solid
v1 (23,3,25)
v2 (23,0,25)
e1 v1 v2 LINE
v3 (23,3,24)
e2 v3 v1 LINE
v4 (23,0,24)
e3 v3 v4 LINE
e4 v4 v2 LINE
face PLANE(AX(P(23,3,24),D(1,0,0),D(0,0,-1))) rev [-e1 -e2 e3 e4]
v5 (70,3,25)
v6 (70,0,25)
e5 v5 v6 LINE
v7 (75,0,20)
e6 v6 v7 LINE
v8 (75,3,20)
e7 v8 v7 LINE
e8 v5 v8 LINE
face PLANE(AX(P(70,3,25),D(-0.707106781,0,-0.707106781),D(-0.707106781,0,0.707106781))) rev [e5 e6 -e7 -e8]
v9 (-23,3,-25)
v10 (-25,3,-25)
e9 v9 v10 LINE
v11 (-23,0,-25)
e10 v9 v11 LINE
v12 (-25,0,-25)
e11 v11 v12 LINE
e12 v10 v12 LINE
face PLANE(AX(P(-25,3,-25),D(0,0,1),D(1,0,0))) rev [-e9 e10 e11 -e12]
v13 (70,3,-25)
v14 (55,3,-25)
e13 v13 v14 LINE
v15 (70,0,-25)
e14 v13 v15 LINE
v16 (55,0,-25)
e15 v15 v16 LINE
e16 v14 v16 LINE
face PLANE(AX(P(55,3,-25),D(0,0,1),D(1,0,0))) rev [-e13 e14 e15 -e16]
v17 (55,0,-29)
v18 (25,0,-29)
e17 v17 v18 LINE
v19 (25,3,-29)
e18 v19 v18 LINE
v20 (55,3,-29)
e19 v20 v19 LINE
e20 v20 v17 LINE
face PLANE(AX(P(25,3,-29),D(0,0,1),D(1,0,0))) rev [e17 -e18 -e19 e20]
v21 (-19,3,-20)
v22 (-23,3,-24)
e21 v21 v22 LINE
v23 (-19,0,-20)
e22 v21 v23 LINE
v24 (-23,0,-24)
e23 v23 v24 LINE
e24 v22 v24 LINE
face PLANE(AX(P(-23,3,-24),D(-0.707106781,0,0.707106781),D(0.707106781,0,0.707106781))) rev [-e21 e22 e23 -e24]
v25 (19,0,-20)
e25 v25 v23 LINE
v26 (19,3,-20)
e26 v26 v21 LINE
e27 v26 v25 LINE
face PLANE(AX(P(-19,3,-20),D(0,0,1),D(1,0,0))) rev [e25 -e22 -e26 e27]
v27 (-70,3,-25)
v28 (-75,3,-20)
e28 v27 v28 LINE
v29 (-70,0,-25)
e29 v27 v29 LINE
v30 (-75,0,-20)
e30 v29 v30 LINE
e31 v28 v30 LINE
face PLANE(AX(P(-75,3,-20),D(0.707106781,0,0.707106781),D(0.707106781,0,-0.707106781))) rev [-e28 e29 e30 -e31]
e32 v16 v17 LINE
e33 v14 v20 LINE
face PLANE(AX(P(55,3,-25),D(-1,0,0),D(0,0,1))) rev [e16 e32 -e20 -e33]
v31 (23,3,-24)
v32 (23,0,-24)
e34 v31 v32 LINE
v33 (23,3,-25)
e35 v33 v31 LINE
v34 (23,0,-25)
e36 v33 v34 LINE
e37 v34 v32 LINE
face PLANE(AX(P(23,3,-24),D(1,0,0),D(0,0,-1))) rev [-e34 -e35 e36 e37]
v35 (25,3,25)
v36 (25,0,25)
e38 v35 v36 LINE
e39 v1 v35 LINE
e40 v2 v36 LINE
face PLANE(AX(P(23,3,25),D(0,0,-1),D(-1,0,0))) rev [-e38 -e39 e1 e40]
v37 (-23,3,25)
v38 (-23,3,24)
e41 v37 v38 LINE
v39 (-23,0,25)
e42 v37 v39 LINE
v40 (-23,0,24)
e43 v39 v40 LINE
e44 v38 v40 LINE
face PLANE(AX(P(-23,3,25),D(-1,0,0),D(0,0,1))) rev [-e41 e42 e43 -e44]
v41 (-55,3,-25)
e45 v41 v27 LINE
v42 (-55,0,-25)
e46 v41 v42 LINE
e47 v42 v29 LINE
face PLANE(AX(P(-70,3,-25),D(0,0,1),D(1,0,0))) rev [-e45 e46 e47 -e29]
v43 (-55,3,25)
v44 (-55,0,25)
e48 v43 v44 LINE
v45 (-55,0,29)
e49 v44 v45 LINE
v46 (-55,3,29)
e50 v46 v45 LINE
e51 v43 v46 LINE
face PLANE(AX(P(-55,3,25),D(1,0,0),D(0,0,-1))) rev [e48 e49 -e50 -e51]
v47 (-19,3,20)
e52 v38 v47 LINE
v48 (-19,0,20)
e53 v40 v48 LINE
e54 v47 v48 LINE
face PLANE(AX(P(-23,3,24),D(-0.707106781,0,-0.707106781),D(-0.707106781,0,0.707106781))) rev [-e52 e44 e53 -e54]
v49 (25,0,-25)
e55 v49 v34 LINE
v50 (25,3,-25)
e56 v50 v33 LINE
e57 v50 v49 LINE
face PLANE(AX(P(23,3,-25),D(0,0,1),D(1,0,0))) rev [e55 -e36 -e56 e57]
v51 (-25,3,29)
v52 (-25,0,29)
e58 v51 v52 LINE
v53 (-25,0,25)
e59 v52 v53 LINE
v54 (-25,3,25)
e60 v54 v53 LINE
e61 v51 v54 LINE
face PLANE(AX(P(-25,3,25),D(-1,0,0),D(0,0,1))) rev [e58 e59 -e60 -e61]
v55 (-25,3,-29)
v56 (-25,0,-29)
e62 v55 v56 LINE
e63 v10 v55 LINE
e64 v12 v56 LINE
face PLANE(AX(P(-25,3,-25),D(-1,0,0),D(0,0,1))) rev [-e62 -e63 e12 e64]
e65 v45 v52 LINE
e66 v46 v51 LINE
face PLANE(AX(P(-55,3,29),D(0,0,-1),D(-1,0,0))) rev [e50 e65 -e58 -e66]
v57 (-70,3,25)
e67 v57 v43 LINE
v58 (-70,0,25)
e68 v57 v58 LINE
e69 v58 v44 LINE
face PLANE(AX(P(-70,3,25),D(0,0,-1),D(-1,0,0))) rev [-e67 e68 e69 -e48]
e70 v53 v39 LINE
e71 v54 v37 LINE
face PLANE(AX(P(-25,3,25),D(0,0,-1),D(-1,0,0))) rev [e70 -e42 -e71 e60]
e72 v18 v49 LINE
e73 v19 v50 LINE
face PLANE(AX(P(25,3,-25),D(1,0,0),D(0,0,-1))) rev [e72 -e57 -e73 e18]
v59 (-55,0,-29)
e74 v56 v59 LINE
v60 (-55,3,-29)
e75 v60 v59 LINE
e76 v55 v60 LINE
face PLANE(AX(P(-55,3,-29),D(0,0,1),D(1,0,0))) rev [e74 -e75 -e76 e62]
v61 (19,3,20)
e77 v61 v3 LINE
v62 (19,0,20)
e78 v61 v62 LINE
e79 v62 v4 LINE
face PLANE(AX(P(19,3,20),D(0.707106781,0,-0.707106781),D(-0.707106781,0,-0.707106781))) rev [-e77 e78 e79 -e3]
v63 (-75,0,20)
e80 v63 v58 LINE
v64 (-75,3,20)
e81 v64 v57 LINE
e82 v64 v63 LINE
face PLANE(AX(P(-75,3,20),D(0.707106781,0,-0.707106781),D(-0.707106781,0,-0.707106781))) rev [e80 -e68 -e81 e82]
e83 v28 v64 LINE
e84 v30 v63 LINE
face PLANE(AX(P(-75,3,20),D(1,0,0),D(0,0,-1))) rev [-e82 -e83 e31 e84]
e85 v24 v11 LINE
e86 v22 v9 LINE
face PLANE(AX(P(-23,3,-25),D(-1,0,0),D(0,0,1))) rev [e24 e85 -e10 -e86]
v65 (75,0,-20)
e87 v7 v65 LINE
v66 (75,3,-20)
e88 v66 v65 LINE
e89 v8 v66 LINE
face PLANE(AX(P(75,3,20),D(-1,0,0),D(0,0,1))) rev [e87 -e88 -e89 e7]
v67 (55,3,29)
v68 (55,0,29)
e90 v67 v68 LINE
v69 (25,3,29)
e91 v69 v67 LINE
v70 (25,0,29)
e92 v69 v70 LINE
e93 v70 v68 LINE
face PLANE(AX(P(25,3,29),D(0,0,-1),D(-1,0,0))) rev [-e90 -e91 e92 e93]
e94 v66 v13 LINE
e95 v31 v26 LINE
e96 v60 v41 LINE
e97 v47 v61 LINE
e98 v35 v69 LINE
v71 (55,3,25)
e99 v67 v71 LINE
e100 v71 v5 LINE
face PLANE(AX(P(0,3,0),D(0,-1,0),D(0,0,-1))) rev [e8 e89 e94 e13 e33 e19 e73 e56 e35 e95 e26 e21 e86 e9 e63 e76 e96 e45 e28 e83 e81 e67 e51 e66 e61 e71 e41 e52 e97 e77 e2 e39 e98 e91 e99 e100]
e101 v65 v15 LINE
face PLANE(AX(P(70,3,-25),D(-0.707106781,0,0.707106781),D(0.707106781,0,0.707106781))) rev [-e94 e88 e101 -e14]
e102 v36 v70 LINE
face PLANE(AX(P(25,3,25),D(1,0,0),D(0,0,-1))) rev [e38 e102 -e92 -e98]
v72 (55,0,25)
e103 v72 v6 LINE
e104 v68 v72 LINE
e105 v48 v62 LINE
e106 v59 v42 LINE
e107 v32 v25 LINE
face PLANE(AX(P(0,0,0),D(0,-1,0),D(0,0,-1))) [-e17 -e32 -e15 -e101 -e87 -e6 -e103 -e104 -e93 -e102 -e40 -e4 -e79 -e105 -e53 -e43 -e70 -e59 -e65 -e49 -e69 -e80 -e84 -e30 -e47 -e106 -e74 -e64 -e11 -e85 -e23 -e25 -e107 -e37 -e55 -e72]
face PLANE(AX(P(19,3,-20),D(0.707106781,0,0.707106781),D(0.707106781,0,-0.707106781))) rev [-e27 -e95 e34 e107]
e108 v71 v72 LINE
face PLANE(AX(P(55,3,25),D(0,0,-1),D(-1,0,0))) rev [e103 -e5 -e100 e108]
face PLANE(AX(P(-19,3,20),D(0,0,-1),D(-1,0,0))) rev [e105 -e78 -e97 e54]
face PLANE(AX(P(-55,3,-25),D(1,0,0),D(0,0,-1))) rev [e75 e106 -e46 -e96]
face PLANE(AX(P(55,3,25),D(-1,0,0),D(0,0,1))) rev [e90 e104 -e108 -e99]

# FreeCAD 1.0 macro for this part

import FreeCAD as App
import Part
import Sketcher

V = App.Vector

doc = App.newDocument("Part")
body = doc.addObject("PartDesign::Body", "Body")

# Sketch on XZ plane
sketch1 = doc.addObject("Sketcher::SketchObject", "Sketch")
body.addObject(sketch1)
sketch1.AttachmentSupport = (doc.XZ_Plane, [""])
sketch1.MapMode = "FlatFace"
sketch1.addGeometry(Part.LineSegment(V(-70, 25, 0), V(-55, 25, 0)), False)
sketch1.addGeometry(Part.LineSegment(V(-55, 25, 0), V(-55, 29, 0)), False)
sketch1.addGeometry(Part.LineSegment(V(-55, 29, 0), V(-25, 29, 0)), False)
sketch1.addGeometry(Part.LineSegment(V(-25, 29, 0), V(-25, 25, 0)), False)
sketch1.addGeometry(Part.LineSegment(V(-25, 25, 0), V(-23, 25, 0)), False)
sketch1.addGeometry(Part.LineSegment(V(-23, 25, 0), V(-23, 24, 0)), False)
sketch1.addGeometry(Part.LineSegment(V(-23, 24, 0), V(-19, 20, 0)), False)
sketch1.addGeometry(Part.LineSegment(V(-19, 20, 0), V(19, 20, 0)), False)
sketch1.addGeometry(Part.LineSegment(V(19, 20, 0), V(23, 24, 0)), False)
sketch1.addGeometry(Part.LineSegment(V(23, 24, 0), V(23, 25, 0)), False)
sketch1.addGeometry(Part.LineSegment(V(23, 25, 0), V(25, 25, 0)), False)
sketch1.addGeometry(Part.LineSegment(V(25, 25, 0), V(25, 29, 0)), False)
sketch1.addGeometry(Part.LineSegment(V(25, 29, 0), V(55, 29, 0)), False)
sketch1.addGeometry(Part.LineSegment(V(55, 29, 0), V(55, 25, 0)), False)
sketch1.addGeometry(Part.LineSegment(V(55, 25, 0), V(70, 25, 0)), False)
sketch1.addGeometry(Part.LineSegment(V(70, 25, 0), V(75, 20, 0)), False)
sketch1.addGeometry(Part.LineSegment(V(75, 20, 0), V(75, -20, 0)), False)
sketch1.addGeometry(Part.LineSegment(V(75, -20, 0), V(70, -25, 0)), False)
sketch1.addGeometry(Part.LineSegment(V(70, -25, 0), V(55, -25, 0)), False)
sketch1.addGeometry(Part.LineSegment(V(55, -25, 0), V(55, -29, 0)), False)
sketch1.addGeometry(Part.LineSegment(V(55, -29, 0), V(25, -29, 0)), False)
sketch1.addGeometry(Part.LineSegment(V(25, -29, 0), V(25, -25, 0)), False)
sketch1.addGeometry(Part.LineSegment(V(25, -25, 0), V(23, -25, 0)), False)
sketch1.addGeometry(Part.LineSegment(V(23, -25, 0), V(23, -24, 0)), False)
sketch1.addGeometry(Part.LineSegment(V(23, -24, 0), V(19, -20, 0)), False)
sketch1.addGeometry(Part.LineSegment(V(19, -20, 0), V(-19, -20, 0)), False)
sketch1.addGeometry(Part.LineSegment(V(-19, -20, 0), V(-23, -24, 0)), False)
sketch1.addGeometry(Part.LineSegment(V(-23, -24, 0), V(-23, -25, 0)), False)
sketch1.addGeometry(Part.LineSegment(V(-23, -25, 0), V(-25, -25, 0)), False)
sketch1.addGeometry(Part.LineSegment(V(-25, -25, 0), V(-25, -29, 0)), False)
sketch1.addGeometry(Part.LineSegment(V(-25, -29, 0), V(-55, -29, 0)), False)
sketch1.addGeometry(Part.LineSegment(V(-55, -29, 0), V(-55, -25, 0)), False)
sketch1.addGeometry(Part.LineSegment(V(-55, -25, 0), V(-70, -25, 0)), False)
sketch1.addGeometry(Part.LineSegment(V(-70, -25, 0), V(-75, -20, 0)), False)
sketch1.addGeometry(Part.LineSegment(V(-75, -20, 0), V(-75, 20, 0)), False)
sketch1.addGeometry(Part.LineSegment(V(-75, 20, 0), V(-70, 25, 0)), False)
sketch1.addConstraint(Sketcher.Constraint("Coincident", 0, 2, 1, 1))
sketch1.addConstraint(Sketcher.Constraint("Coincident", 1, 2, 2, 1))
sketch1.addConstraint(Sketcher.Constraint("Coincident", 2, 2, 3, 1))
sketch1.addConstraint(Sketcher.Constraint("Coincident", 3, 2, 4, 1))
sketch1.addConstraint(Sketcher.Constraint("Coincident", 4, 2, 5, 1))
sketch1.addConstraint(Sketcher.Constraint("Coincident", 5, 2, 6, 1))
sketch1.addConstraint(Sketcher.Constraint("Coincident", 6, 2, 7, 1))
sketch1.addConstraint(Sketcher.Constraint("Coincident", 7, 2, 8, 1))
sketch1.addConstraint(Sketcher.Constraint("Coincident", 8, 2, 9, 1))
sketch1.addConstraint(Sketcher.Constraint("Coincident", 9, 2, 10, 1))
sketch1.addConstraint(Sketcher.Constraint("Coincident", 10, 2, 11, 1))
sketch1.addConstraint(Sketcher.Constraint("Coincident", 11, 2, 12, 1))
sketch1.addConstraint(Sketcher.Constraint("Coincident", 12, 2, 13, 1))
sketch1.addConstraint(Sketcher.Constraint("Coincident", 13, 2, 14, 1))
sketch1.addConstraint(Sketcher.Constraint("Coincident", 14, 2, 15, 1))
sketch1.addConstraint(Sketcher.Constraint("Coincident", 15, 2, 16, 1))
sketch1.addConstraint(Sketcher.Constraint("Coincident", 16, 2, 17, 1))
sketch1.addConstraint(Sketcher.Constraint("Coincident", 17, 2, 18, 1))
sketch1.addConstraint(Sketcher.Constraint("Coincident", 18, 2, 19, 1))
sketch1.addConstraint(Sketcher.Constraint("Coincident", 19, 2, 20, 1))
sketch1.addConstraint(Sketcher.Constraint("Coincident", 20, 2, 21, 1))
sketch1.addConstraint(Sketcher.Constraint("Coincident", 21, 2, 22, 1))
sketch1.addConstraint(Sketcher.Constraint("Coincident", 22, 2, 23, 1))
sketch1.addConstraint(Sketcher.Constraint("Coincident", 23, 2, 24, 1))
sketch1.addConstraint(Sketcher.Constraint("Coincident", 24, 2, 25, 1))
sketch1.addConstraint(Sketcher.Constraint("Coincident", 25, 2, 26, 1))
sketch1.addConstraint(Sketcher.Constraint("Coincident", 26, 2, 27, 1))
sketch1.addConstraint(Sketcher.Constraint("Coincident", 27, 2, 28, 1))
sketch1.addConstraint(Sketcher.Constraint("Coincident", 28, 2, 29, 1))
sketch1.addConstraint(Sketcher.Constraint("Coincident", 29, 2, 30, 1))
sketch1.addConstraint(Sketcher.Constraint("Coincident", 30, 2, 31, 1))
sketch1.addConstraint(Sketcher.Constraint("Coincident", 31, 2, 32, 1))
sketch1.addConstraint(Sketcher.Constraint("Coincident", 32, 2, 33, 1))
sketch1.addConstraint(Sketcher.Constraint("Coincident", 33, 2, 34, 1))
sketch1.addConstraint(Sketcher.Constraint("Coincident", 34, 2, 35, 1))
sketch1.addConstraint(Sketcher.Constraint("Coincident", 35, 2, 0, 1))
sketch1.addConstraint(Sketcher.Constraint("Horizontal", 0))
sketch1.addConstraint(Sketcher.Constraint("Vertical", 1))
sketch1.addConstraint(Sketcher.Constraint("Horizontal", 2))
sketch1.addConstraint(Sketcher.Constraint("Vertical", 3))
sketch1.addConstraint(Sketcher.Constraint("Horizontal", 4))
sketch1.addConstraint(Sketcher.Constraint("Vertical", 5))
sketch1.addConstraint(Sketcher.Constraint("Horizontal", 7))
sketch1.addConstraint(Sketcher.Constraint("Vertical", 9))
sketch1.addConstraint(Sketcher.Constraint("Horizontal", 10))
sketch1.addConstraint(Sketcher.Constraint("Vertical", 11))
sketch1.addConstraint(Sketcher.Constraint("Horizontal", 12))
sketch1.addConstraint(Sketcher.Constraint("Vertical", 13))
sketch1.addConstraint(Sketcher.Constraint("Horizontal", 14))
sketch1.addConstraint(Sketcher.Constraint("Vertical", 16))
sketch1.addConstraint(Sketcher.Constraint("Horizontal", 18))
sketch1.addConstraint(Sketcher.Constraint("Vertical", 19))
sketch1.addConstraint(Sketcher.Constraint("Horizontal", 20))
sketch1.addConstraint(Sketcher.Constraint("Vertical", 21))
sketch1.addConstraint(Sketcher.Constraint("Horizontal", 22))
sketch1.addConstraint(Sketcher.Constraint("Vertical", 23))
sketch1.addConstraint(Sketcher.Constraint("Horizontal", 25))
sketch1.addConstraint(Sketcher.Constraint("Vertical", 27))
sketch1.addConstraint(Sketcher.Constraint("Horizontal", 28))
sketch1.addConstraint(Sketcher.Constraint("Vertical", 29))
sketch1.addConstraint(Sketcher.Constraint("Horizontal", 30))
sketch1.addConstraint(Sketcher.Constraint("Vertical", 31))
sketch1.addConstraint(Sketcher.Constraint("Horizontal", 32))
sketch1.addConstraint(Sketcher.Constraint("Vertical", 34))
sketch1.addConstraint(Sketcher.Constraint("Symmetric", 0, 2, 18, 2, -1, 1))
sketch1.addConstraint(Sketcher.Constraint("Symmetric", 2, 2, 20, 2, -1, 1))
sketch1.addConstraint(Sketcher.Constraint("Symmetric", 4, 2, 22, 2, -1, 1))
sketch1.addConstraint(Sketcher.Constraint("Symmetric", 6, 2, 24, 2, -1, 1))
sketch1.addConstraint(Sketcher.Constraint("Symmetric", 8, 2, 26, 2, -1, 1))
sketch1.addConstraint(Sketcher.Constraint("Symmetric", 10, 2, 28, 2, -1, 1))
sketch1.addConstraint(Sketcher.Constraint("Symmetric", 12, 2, 30, 2, -1, 1))
sketch1.addConstraint(Sketcher.Constraint("Symmetric", 14, 2, 32, 2, -1, 1))
sketch1.addConstraint(Sketcher.Constraint("Symmetric", 15, 2, 33, 2, -1, 1))
sketch1.addConstraint(Sketcher.Constraint("Symmetric", 5, 2, 8, 2, -2))
sketch1.addConstraint(Sketcher.Constraint("Symmetric", 3, 2, 10, 2, -2))
sketch1.addConstraint(Sketcher.Constraint("Symmetric", 1, 2, 12, 2, -2))
sketch1.addConstraint(Sketcher.Constraint("Symmetric", 17, 2, 32, 2, -2))
sketch1.addConstraint(Sketcher.Constraint("Perpendicular", 6, 8))
sketch1.addConstraint(Sketcher.Constraint("Perpendicular", 8, 15))
sketch1.addConstraint(Sketcher.Constraint("Perpendicular", 15, 17))
sketch1.addConstraint(Sketcher.Constraint("Perpendicular", 17, 24))
sketch1.addConstraint(Sketcher.Constraint("Perpendicular", 24, 26))
sketch1.addConstraint(Sketcher.Constraint("Perpendicular", 33, 35))
sketch1.addConstraint(Sketcher.Constraint("Horizontal", 0, 2, 3, 2))
sketch1.addConstraint(Sketcher.Constraint("Horizontal", 7, 2, 15, 2))
sketch1.addConstraint(Sketcher.Constraint("Horizontal", 16, 2, 24, 2))
sketch1.addConstraint(Sketcher.Constraint("Horizontal", 15, 2, 34, 2))
sketch1.addConstraint(Sketcher.Constraint("DistanceX", 0, 1, 0, 2, 15.0))
sketch1.addConstraint(Sketcher.Constraint("DistanceX", 2, 1, 2, 2, 30.0))
sketch1.addConstraint(Sketcher.Constraint("DistanceX", 4, 1, 4, 2, 2.0))
sketch1.addConstraint(Sketcher.Constraint("DistanceX", 7, 1, 7, 2, 38.0))
sketch1.addConstraint(Sketcher.Constraint("DistanceY", 1, 1, 1, 2, 4.0))
sketch1.addConstraint(Sketcher.Constraint("DistanceY", 5, 2, 5, 1, 1.0))
sketch1.addConstraint(Sketcher.Constraint("DistanceY", 16, 2, 16, 1, 40.0))
sketch1.addConstraint(Sketcher.Constraint("DistanceX", 0, 2, -1, 1, 55.0))
pad1 = doc.addObject("PartDesign::Pad", "Pad")
body.addObject(pad1)
pad1.Profile = sketch1
pad1.Length = 3
pad1.Reversed = True

doc.recompute()
